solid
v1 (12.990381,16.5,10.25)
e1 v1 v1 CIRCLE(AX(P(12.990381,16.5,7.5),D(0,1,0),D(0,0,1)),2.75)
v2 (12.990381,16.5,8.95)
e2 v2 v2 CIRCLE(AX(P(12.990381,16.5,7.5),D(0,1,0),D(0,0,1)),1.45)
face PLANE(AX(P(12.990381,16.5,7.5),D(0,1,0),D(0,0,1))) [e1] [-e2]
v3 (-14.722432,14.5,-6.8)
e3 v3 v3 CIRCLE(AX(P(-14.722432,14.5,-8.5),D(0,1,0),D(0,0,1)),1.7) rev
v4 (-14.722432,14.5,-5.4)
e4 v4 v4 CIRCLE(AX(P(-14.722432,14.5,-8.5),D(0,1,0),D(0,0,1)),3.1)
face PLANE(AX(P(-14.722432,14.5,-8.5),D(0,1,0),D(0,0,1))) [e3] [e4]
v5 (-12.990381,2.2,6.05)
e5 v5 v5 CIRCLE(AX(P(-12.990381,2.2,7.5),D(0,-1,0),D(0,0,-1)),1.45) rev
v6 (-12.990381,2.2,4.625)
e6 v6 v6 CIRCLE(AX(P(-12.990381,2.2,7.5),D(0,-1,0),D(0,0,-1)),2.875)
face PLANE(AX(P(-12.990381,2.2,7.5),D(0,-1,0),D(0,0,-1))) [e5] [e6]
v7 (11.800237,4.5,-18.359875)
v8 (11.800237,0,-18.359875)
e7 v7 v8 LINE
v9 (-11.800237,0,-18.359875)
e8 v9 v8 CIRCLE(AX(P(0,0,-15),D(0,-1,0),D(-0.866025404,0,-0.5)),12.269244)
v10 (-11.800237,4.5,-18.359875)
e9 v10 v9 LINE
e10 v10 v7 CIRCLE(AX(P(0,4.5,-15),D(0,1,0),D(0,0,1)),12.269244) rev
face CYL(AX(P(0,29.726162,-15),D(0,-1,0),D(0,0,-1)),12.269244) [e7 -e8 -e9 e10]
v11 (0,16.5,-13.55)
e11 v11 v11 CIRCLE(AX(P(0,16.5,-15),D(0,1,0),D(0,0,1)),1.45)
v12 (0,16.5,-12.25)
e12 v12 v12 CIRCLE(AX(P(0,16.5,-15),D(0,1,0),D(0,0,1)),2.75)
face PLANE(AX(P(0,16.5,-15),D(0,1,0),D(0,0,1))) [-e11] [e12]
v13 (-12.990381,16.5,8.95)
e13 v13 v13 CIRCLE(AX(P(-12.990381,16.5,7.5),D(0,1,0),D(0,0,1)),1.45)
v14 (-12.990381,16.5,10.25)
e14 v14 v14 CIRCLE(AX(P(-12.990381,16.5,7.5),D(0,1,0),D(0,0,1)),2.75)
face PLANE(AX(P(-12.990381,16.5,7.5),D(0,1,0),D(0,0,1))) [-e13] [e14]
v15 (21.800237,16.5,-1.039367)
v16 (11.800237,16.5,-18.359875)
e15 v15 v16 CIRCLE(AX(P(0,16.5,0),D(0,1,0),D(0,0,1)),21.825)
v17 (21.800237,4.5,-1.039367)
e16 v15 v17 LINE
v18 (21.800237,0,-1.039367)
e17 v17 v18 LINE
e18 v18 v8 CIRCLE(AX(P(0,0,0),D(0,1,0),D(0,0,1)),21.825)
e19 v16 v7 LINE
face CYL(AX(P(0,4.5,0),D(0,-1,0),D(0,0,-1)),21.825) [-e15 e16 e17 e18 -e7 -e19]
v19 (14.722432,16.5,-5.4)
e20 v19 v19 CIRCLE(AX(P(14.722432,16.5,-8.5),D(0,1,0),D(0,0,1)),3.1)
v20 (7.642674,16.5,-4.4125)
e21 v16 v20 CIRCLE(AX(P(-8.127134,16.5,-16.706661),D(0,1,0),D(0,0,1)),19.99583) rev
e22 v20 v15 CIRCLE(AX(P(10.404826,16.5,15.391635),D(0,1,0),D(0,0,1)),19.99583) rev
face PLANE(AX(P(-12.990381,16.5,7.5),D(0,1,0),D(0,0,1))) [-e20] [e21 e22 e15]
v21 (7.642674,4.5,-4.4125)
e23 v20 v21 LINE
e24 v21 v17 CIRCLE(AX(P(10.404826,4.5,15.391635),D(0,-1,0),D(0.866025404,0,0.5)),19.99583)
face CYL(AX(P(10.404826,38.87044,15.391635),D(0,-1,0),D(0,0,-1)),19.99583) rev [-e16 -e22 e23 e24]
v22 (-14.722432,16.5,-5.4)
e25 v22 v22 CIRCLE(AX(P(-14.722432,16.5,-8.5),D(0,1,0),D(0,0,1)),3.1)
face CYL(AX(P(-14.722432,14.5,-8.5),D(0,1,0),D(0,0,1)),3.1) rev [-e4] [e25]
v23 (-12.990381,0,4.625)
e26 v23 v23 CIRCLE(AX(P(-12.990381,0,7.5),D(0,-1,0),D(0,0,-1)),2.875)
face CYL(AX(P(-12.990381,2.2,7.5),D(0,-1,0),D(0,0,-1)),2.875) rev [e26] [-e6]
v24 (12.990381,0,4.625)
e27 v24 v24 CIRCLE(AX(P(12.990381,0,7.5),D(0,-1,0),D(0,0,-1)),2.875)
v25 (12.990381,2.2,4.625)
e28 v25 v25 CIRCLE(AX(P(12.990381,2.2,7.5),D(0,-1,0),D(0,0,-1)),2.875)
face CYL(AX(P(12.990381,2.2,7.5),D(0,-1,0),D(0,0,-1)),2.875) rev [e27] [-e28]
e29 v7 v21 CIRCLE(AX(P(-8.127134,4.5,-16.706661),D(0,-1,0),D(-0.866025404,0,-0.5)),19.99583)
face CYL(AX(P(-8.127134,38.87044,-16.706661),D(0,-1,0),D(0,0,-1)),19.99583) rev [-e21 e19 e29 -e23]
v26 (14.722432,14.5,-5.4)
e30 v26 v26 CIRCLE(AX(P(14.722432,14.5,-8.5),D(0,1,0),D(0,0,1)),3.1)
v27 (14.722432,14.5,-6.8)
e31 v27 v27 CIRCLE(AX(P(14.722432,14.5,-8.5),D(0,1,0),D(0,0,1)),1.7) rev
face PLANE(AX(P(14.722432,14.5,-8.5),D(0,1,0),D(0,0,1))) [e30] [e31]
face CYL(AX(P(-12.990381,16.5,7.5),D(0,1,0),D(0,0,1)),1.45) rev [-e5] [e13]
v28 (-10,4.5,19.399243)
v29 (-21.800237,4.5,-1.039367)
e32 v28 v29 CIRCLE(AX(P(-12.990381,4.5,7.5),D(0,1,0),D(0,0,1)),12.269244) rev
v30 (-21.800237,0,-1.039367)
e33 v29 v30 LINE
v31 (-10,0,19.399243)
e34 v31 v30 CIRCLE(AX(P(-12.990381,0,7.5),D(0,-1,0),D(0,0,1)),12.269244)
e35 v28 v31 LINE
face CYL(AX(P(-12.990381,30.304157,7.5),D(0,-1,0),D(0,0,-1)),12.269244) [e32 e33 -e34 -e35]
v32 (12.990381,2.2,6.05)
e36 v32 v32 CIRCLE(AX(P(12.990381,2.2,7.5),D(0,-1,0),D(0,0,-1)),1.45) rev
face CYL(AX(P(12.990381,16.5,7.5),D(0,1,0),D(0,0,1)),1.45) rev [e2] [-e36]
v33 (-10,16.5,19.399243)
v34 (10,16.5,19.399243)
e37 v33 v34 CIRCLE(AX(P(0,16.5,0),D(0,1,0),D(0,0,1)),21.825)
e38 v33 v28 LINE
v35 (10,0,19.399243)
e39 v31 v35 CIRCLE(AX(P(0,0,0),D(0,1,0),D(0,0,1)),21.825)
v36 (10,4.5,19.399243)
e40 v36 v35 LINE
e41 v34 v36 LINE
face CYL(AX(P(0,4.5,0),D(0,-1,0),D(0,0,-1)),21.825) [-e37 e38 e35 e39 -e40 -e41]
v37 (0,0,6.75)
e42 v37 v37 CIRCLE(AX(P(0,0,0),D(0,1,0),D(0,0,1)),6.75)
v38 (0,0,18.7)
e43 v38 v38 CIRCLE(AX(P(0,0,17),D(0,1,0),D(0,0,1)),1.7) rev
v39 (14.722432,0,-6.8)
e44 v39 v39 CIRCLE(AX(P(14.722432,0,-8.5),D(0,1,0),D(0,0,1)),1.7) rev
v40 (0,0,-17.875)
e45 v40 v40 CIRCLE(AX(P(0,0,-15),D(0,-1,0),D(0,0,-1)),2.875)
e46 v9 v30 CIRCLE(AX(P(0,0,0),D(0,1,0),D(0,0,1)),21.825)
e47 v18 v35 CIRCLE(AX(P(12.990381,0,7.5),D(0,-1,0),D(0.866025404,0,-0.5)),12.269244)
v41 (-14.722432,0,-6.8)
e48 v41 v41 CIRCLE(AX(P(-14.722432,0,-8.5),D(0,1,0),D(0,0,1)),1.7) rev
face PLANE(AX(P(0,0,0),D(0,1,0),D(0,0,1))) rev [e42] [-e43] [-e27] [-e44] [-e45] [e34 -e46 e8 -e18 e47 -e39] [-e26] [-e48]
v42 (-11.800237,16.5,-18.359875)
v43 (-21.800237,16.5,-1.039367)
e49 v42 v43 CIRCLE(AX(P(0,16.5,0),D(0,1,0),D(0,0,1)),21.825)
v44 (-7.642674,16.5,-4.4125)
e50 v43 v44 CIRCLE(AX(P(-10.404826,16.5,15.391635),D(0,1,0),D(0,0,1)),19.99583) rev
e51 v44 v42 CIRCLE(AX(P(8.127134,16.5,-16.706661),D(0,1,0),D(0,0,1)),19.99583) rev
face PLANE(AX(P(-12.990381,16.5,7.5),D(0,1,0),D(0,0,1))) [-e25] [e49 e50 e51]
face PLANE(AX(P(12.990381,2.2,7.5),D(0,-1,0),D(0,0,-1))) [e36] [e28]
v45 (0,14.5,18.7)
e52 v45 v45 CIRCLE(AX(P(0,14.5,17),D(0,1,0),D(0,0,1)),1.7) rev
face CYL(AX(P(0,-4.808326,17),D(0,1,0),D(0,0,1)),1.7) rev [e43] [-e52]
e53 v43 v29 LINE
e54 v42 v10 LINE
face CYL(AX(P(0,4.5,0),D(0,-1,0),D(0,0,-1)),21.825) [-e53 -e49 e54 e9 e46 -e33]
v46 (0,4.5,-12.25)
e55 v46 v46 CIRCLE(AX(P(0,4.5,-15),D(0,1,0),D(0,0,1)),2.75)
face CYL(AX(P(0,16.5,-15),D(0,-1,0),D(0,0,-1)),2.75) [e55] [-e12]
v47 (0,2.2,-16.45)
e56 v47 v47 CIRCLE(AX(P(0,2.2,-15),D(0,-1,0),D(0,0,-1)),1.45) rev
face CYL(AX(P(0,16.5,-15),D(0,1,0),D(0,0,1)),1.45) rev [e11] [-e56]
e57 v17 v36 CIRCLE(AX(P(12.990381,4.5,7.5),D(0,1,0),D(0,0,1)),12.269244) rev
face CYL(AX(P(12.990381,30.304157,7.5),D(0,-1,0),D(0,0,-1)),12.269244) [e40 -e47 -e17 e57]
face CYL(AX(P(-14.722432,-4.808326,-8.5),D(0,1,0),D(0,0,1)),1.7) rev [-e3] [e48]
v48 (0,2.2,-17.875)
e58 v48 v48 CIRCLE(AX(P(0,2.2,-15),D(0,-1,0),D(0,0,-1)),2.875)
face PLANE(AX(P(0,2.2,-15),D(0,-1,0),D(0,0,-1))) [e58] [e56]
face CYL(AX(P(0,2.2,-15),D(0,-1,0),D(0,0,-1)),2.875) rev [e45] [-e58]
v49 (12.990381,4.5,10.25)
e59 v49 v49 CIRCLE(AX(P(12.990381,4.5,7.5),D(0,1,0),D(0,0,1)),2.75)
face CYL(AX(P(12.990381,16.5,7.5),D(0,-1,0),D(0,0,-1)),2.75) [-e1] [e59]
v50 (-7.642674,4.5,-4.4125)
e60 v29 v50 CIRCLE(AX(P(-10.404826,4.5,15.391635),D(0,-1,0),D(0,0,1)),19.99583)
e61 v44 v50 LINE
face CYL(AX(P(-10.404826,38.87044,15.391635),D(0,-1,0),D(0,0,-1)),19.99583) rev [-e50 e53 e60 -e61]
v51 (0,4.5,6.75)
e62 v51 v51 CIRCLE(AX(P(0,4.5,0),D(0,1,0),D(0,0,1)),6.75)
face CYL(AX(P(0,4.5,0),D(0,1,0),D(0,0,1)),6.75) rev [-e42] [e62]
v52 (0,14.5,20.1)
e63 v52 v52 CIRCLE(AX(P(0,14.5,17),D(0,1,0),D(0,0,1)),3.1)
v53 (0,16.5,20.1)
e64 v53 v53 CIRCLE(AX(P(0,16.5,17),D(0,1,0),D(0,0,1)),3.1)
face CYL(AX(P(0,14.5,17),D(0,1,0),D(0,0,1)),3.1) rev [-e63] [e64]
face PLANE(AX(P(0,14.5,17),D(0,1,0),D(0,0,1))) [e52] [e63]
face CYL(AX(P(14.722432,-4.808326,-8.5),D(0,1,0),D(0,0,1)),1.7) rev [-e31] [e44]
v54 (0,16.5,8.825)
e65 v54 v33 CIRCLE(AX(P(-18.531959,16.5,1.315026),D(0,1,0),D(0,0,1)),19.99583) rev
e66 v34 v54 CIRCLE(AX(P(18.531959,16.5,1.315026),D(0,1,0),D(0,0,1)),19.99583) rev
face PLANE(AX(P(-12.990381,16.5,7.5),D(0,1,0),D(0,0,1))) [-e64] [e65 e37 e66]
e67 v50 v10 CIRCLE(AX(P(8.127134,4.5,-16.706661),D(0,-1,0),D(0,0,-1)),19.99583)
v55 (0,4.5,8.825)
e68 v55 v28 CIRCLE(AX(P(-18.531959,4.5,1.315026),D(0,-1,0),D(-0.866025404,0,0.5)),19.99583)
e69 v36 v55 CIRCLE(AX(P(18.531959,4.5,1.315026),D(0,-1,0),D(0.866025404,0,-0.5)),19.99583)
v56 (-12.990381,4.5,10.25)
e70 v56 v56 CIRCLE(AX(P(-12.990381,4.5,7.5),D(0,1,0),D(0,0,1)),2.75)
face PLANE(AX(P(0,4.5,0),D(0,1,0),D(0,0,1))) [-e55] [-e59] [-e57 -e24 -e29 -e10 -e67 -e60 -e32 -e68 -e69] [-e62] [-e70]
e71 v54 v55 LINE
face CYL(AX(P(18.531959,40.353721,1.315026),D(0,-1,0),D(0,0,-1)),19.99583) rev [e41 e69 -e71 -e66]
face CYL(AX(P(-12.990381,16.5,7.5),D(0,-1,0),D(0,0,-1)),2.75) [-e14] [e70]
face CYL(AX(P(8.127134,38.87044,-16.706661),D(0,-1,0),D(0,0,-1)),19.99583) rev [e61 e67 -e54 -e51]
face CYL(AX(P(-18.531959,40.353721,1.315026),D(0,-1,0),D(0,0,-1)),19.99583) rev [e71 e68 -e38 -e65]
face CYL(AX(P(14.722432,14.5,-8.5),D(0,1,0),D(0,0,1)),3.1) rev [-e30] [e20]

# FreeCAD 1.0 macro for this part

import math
import FreeCAD as App
import Part
import Sketcher
from FreeCAD import Vector
Q = App.Units.Quantity

doc = App.newDocument("Part")
params = doc.addObject("Spreadsheet::Sheet", "Params")
for row, (alias, value) in enumerate([
    ("sketch1_diameter", "43.65 mm"),
    ("pad1_length", "4.5 mm"),
    ("sketch2_diameter", "5.5 mm"),
    ("pad2_length", "12 mm"),
    ("sketch3_diameter", "13.5 mm"),
    ("hole_diameter", "13.5 mm"),
    ("pad3_length", "12 mm"),
    ("sketch5_diameter", "3.4 mm"),
    ("pocket1_length", "16.5 mm"),
    ("sketch6_diameter", "2.9 mm"),
    ("hole2_diameter", "2.9 mm"),
    ("pad4_length", "4.5 mm"),
    ("sketch8_diameter", "5.75 mm"),
    ("pocket2_length", "2.2 mm"),
    ("sketch9_diameter", "6.2 mm"),
    ("pocket3_length", "2 mm"),
], start=1):
    params.set(f"A{row}", alias)
    params.set(f"B{row}", "=" + value)
    params.setAlias(f"B{row}", alias)

body = doc.addObject("PartDesign::Body", "Body")

# Sketch on XZ plane
sketch1 = body.newObject("Sketcher::SketchObject", "Sketch")
sketch1.AttachmentSupport = (doc.getObject("XZ_Plane"), [""])
sketch1.MapMode = "FlatFace"
sketch1.addGeometry(Part.Circle(Vector(0, 0, 0), Vector(0, 0, 1), 21.825), False)
sketch1.addConstraint([
    Sketcher.Constraint("Coincident", 0, 3, -1, 1),
    Sketcher.Constraint("Diameter", 0, Q("43.65 mm")),
])
sketch1.setExpression("Constraints[1]", "Params.sketch1_diameter")
pad1 = body.newObject("PartDesign::Pad", "Pad")
pad1.Profile = sketch1
pad1.setExpression("Length", "Params.pad1_length")
pad1.Reversed = True

# Sketch on XZ plane
sketch2 = body.newObject("Sketcher::SketchObject", "Sketch001")
sketch2.AttachmentSupport = (doc.getObject("XZ_Plane"), [""])
sketch2.MapMode = "FlatFace"
sketch2.AttachmentOffset = App.Placement(Vector(0, 0, -4.5), App.Rotation())
sketch2.addGeometry([
    Part.Circle(Vector(0, -15, 0), Vector(0, 0, 1), 2.75),
    Part.Circle(Vector(12.990381, 7.5, 0), Vector(0, 0, 1), 2.75),
    Part.Circle(Vector(-12.990381, 7.5, 0), Vector(0, 0, 1), 2.75),
], False)
sketch2.addConstraint([
    Sketcher.Constraint("Equal", 0, 1),
    Sketcher.Constraint("Equal", 1, 2),
    Sketcher.Constraint("Symmetric", 1, 3, 2, 3, -2),
    Sketcher.Constraint("PointOnObject", 0, 3, -2),
    Sketcher.Constraint("Diameter", 0, Q("5.5 mm")),
    Sketcher.Constraint("DistanceY", 0, 3, -1, 1, Q("15 mm")),
    Sketcher.Constraint("DistanceY", -1, 1, 1, 3, Q("7.5 mm")),
    Sketcher.Constraint("DistanceX", -1, 1, 1, 3, Q("12.990381 mm")),
])
sketch2.setExpression("Constraints[4]", "Params.sketch2_diameter")
pad2 = body.newObject("PartDesign::Pad", "Pad001")
pad2.Profile = sketch2
pad2.setExpression("Length", "Params.pad2_length")
pad2.Reversed = True

# Sketch on XZ plane
sketch3 = body.newObject("Sketcher::SketchObject", "Sketch002")
sketch3.AttachmentSupport = (doc.getObject("XZ_Plane"), [""])
sketch3.MapMode = "FlatFace"
sketch3.AttachmentOffset = App.Placement(Vector(0, 0, -4.5), App.Rotation())
sketch3.addGeometry(Part.Circle(Vector(0, 0, 0), Vector(0, 0, 1), 6.75), False)
sketch3.addConstraint([
    Sketcher.Constraint("Coincident", 0, 3, -1, 1),
    Sketcher.Constraint("Diameter", 0, Q("13.5 mm")),
])
sketch3.setExpression("Constraints[1]", "Params.sketch3_diameter")
doc.recompute()
hole = body.newObject("PartDesign::Hole", "Hole")
hole.Profile = sketch3
hole.ThreadType = "None"
hole.setExpression("Diameter", "Params.hole_diameter")
hole.DepthType = "ThroughAll"
hole.Reversed = True

# Sketch on XZ plane
sketch4 = body.newObject("Sketcher::SketchObject", "Sketch003")
sketch4.AttachmentSupport = (doc.getObject("XZ_Plane"), [""])
sketch4.MapMode = "FlatFace"
sketch4.AttachmentOffset = App.Placement(Vector(0, 0, -4.5), App.Rotation())
sketch4.addGeometry([
    Part.ArcOfCircle(Part.Circle(Vector(8.127134, -16.706661, 0), Vector(0, 0, 1), 19.99583), math.radians(142.059979), math.radians(184.742513)),
    Part.ArcOfCircle(Part.Circle(Vector(0, 0, 0), Vector(0, 0, 1), 21.825), math.radians(-177.270383), math.radians(-122.729617)),
    Part.ArcOfCircle(Part.Circle(Vector(-10.404826, 15.391635, 0), Vector(0, 0, 1), 19.99583), math.radians(-124.742513), math.radians(-82.059979)),
], False)
sketch4.addConstraint([
    Sketcher.Constraint("Coincident", 0, 2, 1, 2),
    Sketcher.Constraint("Coincident", 1, 1, 2, 1),
    Sketcher.Constraint("Coincident", 2, 2, 0, 1),
    Sketcher.Constraint("Coincident", 1, 3, -1, 1),
    Sketcher.Constraint("Equal", 0, 2),
    Sketcher.Constraint("Radius", 1, Q("21.825 mm")),
    Sketcher.Constraint("DistanceX", 1, 1, 0, 2, Q("10 mm")),
    Sketcher.Constraint("Radius", 0, Q("19.99583 mm")),
    Sketcher.Constraint("DistanceY", 2, 2, -1, 1, Q("4.4125 mm")),
    Sketcher.Constraint("DistanceY", 0, 3, -1, 1, Q("16.706661 mm")),
    Sketcher.Constraint("DistanceX", 2, 3, 0, 3, Q("18.531959 mm")),
])
pad3 = body.newObject("PartDesign::Pad", "Pad002")
pad3.Profile = sketch4
pad3.setExpression("Length", "Params.pad3_length")
pad3.Reversed = True

# Sketch on XZ plane
sketch5 = body.newObject("Sketcher::SketchObject", "Sketch004")
sketch5.AttachmentSupport = (doc.getObject("XZ_Plane"), [""])
sketch5.MapMode = "FlatFace"
sketch5.AttachmentOffset = App.Placement(Vector(0, 0, -16.5), App.Rotation())
sketch5.addGeometry(Part.Circle(Vector(-14.722432, -8.5, 0), Vector(0, 0, 1), 1.7), False)
sketch5.addConstraint([
    Sketcher.Constraint("Diameter", 0, Q("3.4 mm")),
    Sketcher.Constraint("DistanceY", 0, 3, -1, 1, Q("8.5 mm")),
    Sketcher.Constraint("DistanceX", 0, 3, -1, 1, Q("14.722432 mm")),
])
sketch5.setExpression("Constraints[0]", "Params.sketch5_diameter")
pocket1 = body.newObject("PartDesign::Pocket", "Pocket")
pocket1.Profile = sketch5
pocket1.setExpression("Length", "Params.pocket1_length")
pocket1.Reversed = True
doc.recompute()

polarpattern = body.newObject("PartDesign::PolarPattern", "PolarPattern")
polarpattern.Originals = [pad3, pocket1]
polarpattern.Axis = (doc.getObject("Y_Axis"), [""])
polarpattern.Angle = 360
polarpattern.Occurrences = 3
body.Tip = polarpattern

# Sketch on XZ plane
sketch6 = body.newObject("Sketcher::SketchObject", "Sketch005")
sketch6.AttachmentSupport = (doc.getObject("XZ_Plane"), [""])
sketch6.MapMode = "FlatFace"
sketch6.AttachmentOffset = App.Placement(Vector(0, 0, -16.5), App.Rotation())
sketch6.addGeometry([
    Part.Circle(Vector(12.990381, 7.5, 0), Vector(0, 0, 1), 1.45),
    Part.Circle(Vector(-12.990381, 7.5, 0), Vector(0, 0, 1), 1.45),
    Part.Circle(Vector(0, -15, 0), Vector(0, 0, 1), 1.45),
], False)
sketch6.addConstraint([
    Sketcher.Constraint("Equal", 0, 1),
    Sketcher.Constraint("Equal", 1, 2),
    Sketcher.Constraint("Symmetric", 0, 3, 1, 3, -2),
    Sketcher.Constraint("PointOnObject", 2, 3, -2),
    Sketcher.Constraint("Diameter", 0, Q("2.9 mm")),
    Sketcher.Constraint("DistanceY", 2, 3, -1, 1, Q("15 mm")),
    Sketcher.Constraint("DistanceY", -1, 1, 0, 3, Q("7.5 mm")),
    Sketcher.Constraint("DistanceX", -1, 1, 0, 3, Q("12.990381 mm")),
])
sketch6.setExpression("Constraints[4]", "Params.sketch6_diameter")
doc.recompute()
hole2 = body.newObject("PartDesign::Hole", "Hole001")
hole2.Profile = sketch6
hole2.ThreadType = "None"
hole2.setExpression("Diameter", "Params.hole2_diameter")
hole2.DepthType = "ThroughAll"
hole2.Reversed = True

# Sketch on XZ plane
sketch7 = body.newObject("Sketcher::SketchObject", "Sketch006")
sketch7.AttachmentSupport = (doc.getObject("XZ_Plane"), [""])
sketch7.MapMode = "FlatFace"
sketch7.addGeometry([
    Part.ArcOfCircle(Part.Circle(Vector(0, 0, 0), Vector(0, 0, 1), 21.825), math.radians(117.270383), math.radians(182.729617)),
    Part.ArcOfCircle(Part.Circle(Vector(-12.990381, 7.5, 0), Vector(0, 0, 1), 12.269244), math.radians(75.893216), math.radians(224.106784)),
], False)
sketch7.addConstraint([
    Sketcher.Constraint("Coincident", 0, 1, 1, 1),
    Sketcher.Constraint("Coincident", 1, 2, 0, 2),
    Sketcher.Constraint("Coincident", 0, 3, -1, 1),
    Sketcher.Constraint("DistanceX", 0, 1, -1, 1, Q("10 mm")),
    Sketcher.Constraint("Radius", 0, Q("21.825 mm")),
    Sketcher.Constraint("DistanceY", -1, 1, 1, 3, Q("7.5 mm")),
    Sketcher.Constraint("Radius", 1, Q("12.269244 mm")),
])
pad4 = body.newObject("PartDesign::Pad", "Pad003")
pad4.Profile = sketch7
pad4.setExpression("Length", "Params.pad4_length")
pad4.Reversed = True
doc.recompute()

polarpattern2 = body.newObject("PartDesign::PolarPattern", "PolarPattern001")
polarpattern2.Originals = [pad4]
polarpattern2.Axis = (doc.getObject("Y_Axis"), [""])
polarpattern2.Angle = 360
polarpattern2.Occurrences = 3
body.Tip = polarpattern2

# Sketch on XZ plane
sketch8 = body.newObject("Sketcher::SketchObject", "Sketch007")
sketch8.AttachmentSupport = (doc.getObject("XZ_Plane"), [""])
sketch8.MapMode = "FlatFace"
sketch8.addGeometry([
    Part.Circle(Vector(-12.990381, 7.5, 0), Vector(0, 0, 1), 2.875),
    Part.Circle(Vector(12.990381, 7.5, 0), Vector(0, 0, 1), 2.875),
    Part.Circle(Vector(0, -15, 0), Vector(0, 0, 1), 2.875),
], False)
sketch8.addConstraint([
    Sketcher.Constraint("Equal", 0, 1),
    Sketcher.Constraint("Equal", 1, 2),
    Sketcher.Constraint("Symmetric", 0, 3, 1, 3, -2),
    Sketcher.Constraint("PointOnObject", 2, 3, -2),
    Sketcher.Constraint("Diameter", 0, Q("5.75 mm")),
    Sketcher.Constraint("DistanceY", 2, 3, -1, 1, Q("15 mm")),
    Sketcher.Constraint("DistanceY", -1, 1, 0, 3, Q("7.5 mm")),
    Sketcher.Constraint("DistanceX", 0, 3, -1, 1, Q("12.990381 mm")),
])
sketch8.setExpression("Constraints[4]", "Params.sketch8_diameter")
pocket2 = body.newObject("PartDesign::Pocket", "Pocket001")
pocket2.Profile = sketch8
pocket2.setExpression("Length", "Params.pocket2_length")

# Sketch on XZ plane
sketch9 = body.newObject("Sketcher::SketchObject", "Sketch008")
sketch9.AttachmentSupport = (doc.getObject("XZ_Plane"), [""])
sketch9.MapMode = "FlatFace"
sketch9.AttachmentOffset = App.Placement(Vector(0, 0, -16.5), App.Rotation())
sketch9.addGeometry([
    Part.Circle(Vector(0, 17, 0), Vector(0, 0, 1), 3.1),
    Part.Circle(Vector(-14.722432, -8.5, 0), Vector(0, 0, 1), 3.1),
    Part.Circle(Vector(14.722432, -8.5, 0), Vector(0, 0, 1), 3.1),
], False)
sketch9.addConstraint([
    Sketcher.Constraint("Equal", 0, 1),
    Sketcher.Constraint("Equal", 1, 2),
    Sketcher.Constraint("Symmetric", 1, 3, 2, 3, -2),
    Sketcher.Constraint("PointOnObject", 0, 3, -2),
    Sketcher.Constraint("Diameter", 0, Q("6.2 mm")),
    Sketcher.Constraint("DistanceY", -1, 1, 0, 3, Q("17 mm")),
    Sketcher.Constraint("DistanceY", 1, 3, -1, 1, Q("8.5 mm")),
    Sketcher.Constraint("DistanceX", 1, 3, -1, 1, Q("14.722432 mm")),
])
sketch9.setExpression("Constraints[4]", "Params.sketch9_diameter")
pocket3 = body.newObject("PartDesign::Pocket", "Pocket002")
pocket3.Profile = sketch9
pocket3.setExpression("Length", "Params.pocket3_length")
pocket3.Reversed = True

doc.recompute()
